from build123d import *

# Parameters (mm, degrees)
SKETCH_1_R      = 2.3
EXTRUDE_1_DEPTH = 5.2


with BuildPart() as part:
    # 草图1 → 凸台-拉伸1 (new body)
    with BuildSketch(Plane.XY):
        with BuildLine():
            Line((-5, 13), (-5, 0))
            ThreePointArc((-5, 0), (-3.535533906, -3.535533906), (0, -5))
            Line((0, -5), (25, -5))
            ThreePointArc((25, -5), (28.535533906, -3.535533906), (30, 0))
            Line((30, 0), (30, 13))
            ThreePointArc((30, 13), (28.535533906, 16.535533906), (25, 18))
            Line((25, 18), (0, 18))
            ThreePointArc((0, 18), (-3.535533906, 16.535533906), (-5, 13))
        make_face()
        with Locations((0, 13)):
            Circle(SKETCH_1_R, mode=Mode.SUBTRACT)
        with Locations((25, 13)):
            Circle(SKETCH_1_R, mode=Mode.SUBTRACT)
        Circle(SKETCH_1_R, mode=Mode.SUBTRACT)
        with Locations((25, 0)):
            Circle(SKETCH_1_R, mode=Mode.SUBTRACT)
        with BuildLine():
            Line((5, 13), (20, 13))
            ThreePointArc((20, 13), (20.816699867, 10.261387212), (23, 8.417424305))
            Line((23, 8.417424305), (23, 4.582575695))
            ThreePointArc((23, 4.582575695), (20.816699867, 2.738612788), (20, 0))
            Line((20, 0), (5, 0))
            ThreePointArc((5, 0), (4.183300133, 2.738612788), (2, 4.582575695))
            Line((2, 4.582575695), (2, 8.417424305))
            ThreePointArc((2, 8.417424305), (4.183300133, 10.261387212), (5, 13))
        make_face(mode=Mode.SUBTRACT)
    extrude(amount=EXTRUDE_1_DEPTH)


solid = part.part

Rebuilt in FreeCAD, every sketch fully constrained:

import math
import FreeCAD as App
import Part
import Sketcher
from FreeCAD import Vector
Q = App.Units.Quantity

doc = App.newDocument("Part")
params = doc.addObject("Spreadsheet::Sheet", "Params")
for row, (alias, value) in enumerate([
    ("sketch1_radius", "5 mm"),
    ("sketch1_diameter", "4.6 mm"),
    ("sketch1_width", "25 mm"),
    ("sketch1_height", "13 mm"),
    ("pad1_length", "5.2 mm"),
], start=1):
    params.set(f"A{row}", alias)
    params.set(f"B{row}", "=" + value)
    params.setAlias(f"B{row}", alias)

body = doc.addObject("PartDesign::Body", "Body")

sketch1 = doc.addObject("Sketcher::SketchObject", "Sketch")
body.addObject(sketch1)
sketch1.AttachmentSupport = (doc.XY_Plane, [""])
sketch1.MapMode = "FlatFace"
sketch1.addGeometry([
    Part.LineSegment(Vector(-5, 13, 0), Vector(-5, 0, 0)),
    Part.ArcOfCircle(Part.Circle(Vector(0, 0, 0), Vector(0, 0, 1), 5), math.radians(180), math.radians(270)),
    Part.LineSegment(Vector(0, -5, 0), Vector(25, -5, 0)),
    Part.ArcOfCircle(Part.Circle(Vector(25, 0, 0), Vector(0, 0, 1), 5), math.radians(-90), math.radians(0)),
    Part.LineSegment(Vector(30, 0, 0), Vector(30, 13, 0)),
    Part.ArcOfCircle(Part.Circle(Vector(25, 13, 0), Vector(0, 0, 1), 5), math.radians(0), math.radians(90)),
    Part.LineSegment(Vector(25, 18, 0), Vector(0, 18, 0)),
    Part.ArcOfCircle(Part.Circle(Vector(0, 13, 0), Vector(0, 0, 1), 5), math.radians(90), math.radians(180)),
    Part.Circle(Vector(0, 0, 0), Vector(0, 0, 1), 2.3),
    Part.Circle(Vector(25, 0, 0), Vector(0, 0, 1), 2.3),
    Part.ArcOfCircle(Part.Circle(Vector(0, 13, 0), Vector(0, 0, 1), 5), math.radians(-66), math.radians(0)),
    Part.LineSegment(Vector(5, 13, 0), Vector(20, 13, 0)),
    Part.ArcOfCircle(Part.Circle(Vector(25, 13, 0), Vector(0, 0, 1), 5), math.radians(180), math.radians(246)),
    Part.LineSegment(Vector(23, 8.4, 0), Vector(23, 4.6, 0)),
    Part.ArcOfCircle(Part.Circle(Vector(25, 0, 0), Vector(0, 0, 1), 5), math.radians(114), math.radians(180)),
    Part.LineSegment(Vector(20, 0, 0), Vector(5, 0, 0)),
    Part.ArcOfCircle(Part.Circle(Vector(0, 0, 0), Vector(0, 0, 1), 5), math.radians(0), math.radians(66)),
    Part.LineSegment(Vector(2, 4.6, 0), Vector(2, 8.4, 0)),
    Part.Circle(Vector(0, 13, 0), Vector(0, 0, 1), 2.3),
    Part.Circle(Vector(25, 13, 0), Vector(0, 0, 1), 2.3),
], False)
sketch1.addConstraint([
    Sketcher.Constraint("Tangent", 0, 2, 1, 1),
    Sketcher.Constraint("Tangent", 1, 2, 2, 1),
    Sketcher.Constraint("Tangent", 2, 2, 3, 1),
    Sketcher.Constraint("Tangent", 3, 2, 4, 1),
    Sketcher.Constraint("Tangent", 4, 2, 5, 1),
    Sketcher.Constraint("Tangent", 5, 2, 6, 1),
    Sketcher.Constraint("Tangent", 6, 2, 7, 1),
    Sketcher.Constraint("Tangent", 7, 2, 0, 1),
    Sketcher.Constraint("Coincident", 10, 2, 11, 1),
    Sketcher.Constraint("Coincident", 11, 2, 12, 1),
    Sketcher.Constraint("Coincident", 12, 2, 13, 1),
    Sketcher.Constraint("Coincident", 13, 2, 14, 1),
    Sketcher.Constraint("Coincident", 14, 2, 15, 1),
    Sketcher.Constraint("Coincident", 15, 2, 16, 1),
    Sketcher.Constraint("Coincident", 16, 2, 17, 1),
    Sketcher.Constraint("Coincident", 17, 2, 10, 1),
    Sketcher.Constraint("Vertical", 0),
    Sketcher.Constraint("Horizontal", 2),
    Sketcher.Constraint("Vertical", 4),
    Sketcher.Constraint("Horizontal", 6),
    Sketcher.Constraint("Horizontal", 11),
    Sketcher.Constraint("Vertical", 13),
    Sketcher.Constraint("Horizontal", 15),
    Sketcher.Constraint("Vertical", 17),
    Sketcher.Constraint("Coincident", 1, 3, -1, 1),
    Sketcher.Constraint("Coincident", 8, 3, -1, 1),
    Sketcher.Constraint("Coincident", 16, 3, -1, 1),
    Sketcher.Constraint("Coincident", 9, 3, 3, 3),
    Sketcher.Constraint("Coincident", 10, 3, 7, 3),
    Sketcher.Constraint("Coincident", 12, 3, 5, 3),
    Sketcher.Constraint("Coincident", 14, 3, 3, 3),
    Sketcher.Constraint("Coincident", 18, 3, 7, 3),
    Sketcher.Constraint("Coincident", 19, 3, 5, 3),
    Sketcher.Constraint("Equal", 1, 3),
    Sketcher.Constraint("Equal", 3, 5),
    Sketcher.Constraint("Equal", 5, 7),
    Sketcher.Constraint("Equal", 8, 9),
    Sketcher.Constraint("Equal", 7, 10),
    Sketcher.Constraint("Equal", 10, 12),
    Sketcher.Constraint("Equal", 12, 14),
    Sketcher.Constraint("Equal", 14, 16),
    Sketcher.Constraint("Equal", 9, 18),
    Sketcher.Constraint("Equal", 18, 19),
    Sketcher.Constraint("PointOnObject", 14, 2, -1),
    Sketcher.Constraint("Horizontal", 7, 2, 10, 2),
    Sketcher.Constraint("Horizontal", 13, 2, 16, 2),
    Sketcher.Constraint("Radius", 1, Q("5 mm")),
    Sketcher.Constraint("Diameter", 8, Q("4.6 mm")),
    Sketcher.Constraint("DistanceX", 2, 1, 2, 2, Q("25 mm")),
    Sketcher.Constraint("DistanceY", 0, 2, 0, 1, Q("13 mm")),
    Sketcher.Constraint("DistanceX", -1, 1, 12, 2, Q("23 mm")),
])
sketch1.setExpression("Constraints[46]", "Params.sketch1_radius")
sketch1.setExpression("Constraints[47]", "Params.sketch1_diameter")
sketch1.setExpression("Constraints[48]", "Params.sketch1_width")
sketch1.setExpression("Constraints[49]", "Params.sketch1_height")
pad1 = doc.addObject("PartDesign::Pad", "Pad")
body.addObject(pad1)
pad1.Profile = sketch1
pad1.setExpression("Length", "Params.pad1_length")

doc.recompute()
